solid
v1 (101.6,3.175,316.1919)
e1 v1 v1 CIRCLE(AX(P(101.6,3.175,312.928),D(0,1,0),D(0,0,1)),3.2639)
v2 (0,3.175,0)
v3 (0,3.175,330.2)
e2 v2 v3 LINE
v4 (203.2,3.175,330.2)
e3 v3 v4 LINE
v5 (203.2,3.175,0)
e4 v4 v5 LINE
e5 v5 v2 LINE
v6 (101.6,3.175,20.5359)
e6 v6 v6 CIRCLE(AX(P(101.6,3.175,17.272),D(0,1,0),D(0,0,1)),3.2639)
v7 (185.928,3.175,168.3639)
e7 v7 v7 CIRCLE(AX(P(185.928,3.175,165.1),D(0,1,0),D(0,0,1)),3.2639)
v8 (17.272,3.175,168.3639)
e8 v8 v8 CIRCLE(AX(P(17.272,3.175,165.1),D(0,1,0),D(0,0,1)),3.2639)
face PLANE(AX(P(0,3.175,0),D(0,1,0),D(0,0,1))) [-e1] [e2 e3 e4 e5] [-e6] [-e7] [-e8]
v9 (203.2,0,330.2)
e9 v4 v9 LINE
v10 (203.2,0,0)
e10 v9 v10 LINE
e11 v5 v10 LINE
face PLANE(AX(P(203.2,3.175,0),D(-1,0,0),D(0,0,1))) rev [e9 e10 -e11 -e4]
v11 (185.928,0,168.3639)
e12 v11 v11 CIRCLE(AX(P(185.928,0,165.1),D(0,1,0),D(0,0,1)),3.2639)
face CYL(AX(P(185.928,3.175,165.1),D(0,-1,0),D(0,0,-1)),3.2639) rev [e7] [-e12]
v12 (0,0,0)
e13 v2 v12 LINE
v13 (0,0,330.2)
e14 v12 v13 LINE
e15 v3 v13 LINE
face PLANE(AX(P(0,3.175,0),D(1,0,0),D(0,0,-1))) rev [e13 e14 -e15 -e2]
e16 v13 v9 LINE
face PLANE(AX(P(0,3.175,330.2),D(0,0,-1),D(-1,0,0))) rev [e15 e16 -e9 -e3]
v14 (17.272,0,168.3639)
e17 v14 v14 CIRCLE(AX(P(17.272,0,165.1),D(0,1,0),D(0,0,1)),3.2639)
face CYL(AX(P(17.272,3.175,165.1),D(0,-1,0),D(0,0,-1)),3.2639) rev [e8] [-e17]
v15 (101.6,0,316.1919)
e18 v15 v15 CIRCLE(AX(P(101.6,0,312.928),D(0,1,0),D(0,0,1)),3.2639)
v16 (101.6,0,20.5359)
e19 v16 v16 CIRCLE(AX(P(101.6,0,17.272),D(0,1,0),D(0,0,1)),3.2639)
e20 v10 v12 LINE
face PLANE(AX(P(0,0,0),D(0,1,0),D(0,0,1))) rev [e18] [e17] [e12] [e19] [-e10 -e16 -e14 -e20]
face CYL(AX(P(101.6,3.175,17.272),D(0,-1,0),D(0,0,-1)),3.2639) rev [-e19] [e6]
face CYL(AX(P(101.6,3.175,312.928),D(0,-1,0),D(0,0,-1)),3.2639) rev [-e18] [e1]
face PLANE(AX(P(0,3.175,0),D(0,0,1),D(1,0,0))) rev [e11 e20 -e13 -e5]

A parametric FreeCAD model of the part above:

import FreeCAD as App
import Part
import Sketcher

V = App.Vector
Q = App.Units.Quantity


def add_polygon(sketch, points):
    """Adds a closed chain of lines whose ends are joined by coincident constraints."""
    first, n = sketch.GeometryCount, len(points)
    for a, b in zip(points, points[1:] + points[:1]):
        sketch.addGeometry(Part.LineSegment(App.Vector(*a, 0), App.Vector(*b, 0)), False)
    for i in range(n):
        sketch.addConstraint(Sketcher.Constraint("Coincident", first + i, 2, first + (i + 1) % n, 1))

doc = App.newDocument("Part")
body = doc.addObject("PartDesign::Body", "Body")

# Sketch on XZ plane
sketch1 = doc.addObject("Sketcher::SketchObject", "Sketch")
body.addObject(sketch1)
sketch1.AttachmentSupport = (doc.XZ_Plane, [""])
sketch1.MapMode = "FlatFace"
add_polygon(sketch1, [(0, 0), (0, 330.2), (203.2, 330.2), (203.2, 0)])  # lines 0-3
sketch1.addGeometry(Part.Circle(V(101.6, 312.9, 0), V(0, 0, 1), 3.3), False)  # 4
sketch1.addGeometry(Part.Circle(V(17.3, 165.1, 0), V(0, 0, 1), 3.3), False)  # 5
sketch1.addGeometry(Part.Circle(V(185.9, 165.1, 0), V(0, 0, 1), 3.3), False)  # 6
sketch1.addGeometry(Part.Circle(V(101.6, 17.3, 0), V(0, 0, 1), 3.3), False)  # 7
sketch1.addConstraint([
    Sketcher.Constraint("Vertical", 0),
    Sketcher.Constraint("Horizontal", 1),
    Sketcher.Constraint("Vertical", 2),
    Sketcher.Constraint("Horizontal", 3),
    Sketcher.Constraint("Coincident", 3, 2, -1, 1),
    Sketcher.Constraint("Equal", 4, 5),
    Sketcher.Constraint("Equal", 5, 6),
    Sketcher.Constraint("Equal", 6, 7),
    Sketcher.Constraint("Horizontal", 5, 3, 6, 3),
    Sketcher.Constraint("Vertical", 4, 3, 7, 3),
    Sketcher.Constraint("DistanceX", 1, 1, 1, 2, Q("8 in")),
    Sketcher.Constraint("DistanceY", 0, 1, 0, 2, Q("13 in")),
    Sketcher.Constraint("Diameter", 4, Q("0.257 in")),
    Sketcher.Constraint("DistanceX", -1, 1, 4, 3, Q("4 in")),
    Sketcher.Constraint("DistanceY", -1, 1, 5, 3, Q("6.5 in")),
    Sketcher.Constraint("DistanceY", -1, 1, 4, 3, Q("12.32 in")),
    Sketcher.Constraint("DistanceX", -1, 1, 5, 3, Q("0.68 in")),
    Sketcher.Constraint("DistanceX", -1, 1, 6, 3, Q("7.32 in")),
    Sketcher.Constraint("DistanceY", -1, 1, 7, 3, Q("0.68 in")),
])
pad1 = doc.addObject("PartDesign::Pad", "Pad")
body.addObject(pad1)
pad1.Profile = sketch1
pad1.Length = Q("0.125 in")
pad1.Reversed = True

doc.recompute()
